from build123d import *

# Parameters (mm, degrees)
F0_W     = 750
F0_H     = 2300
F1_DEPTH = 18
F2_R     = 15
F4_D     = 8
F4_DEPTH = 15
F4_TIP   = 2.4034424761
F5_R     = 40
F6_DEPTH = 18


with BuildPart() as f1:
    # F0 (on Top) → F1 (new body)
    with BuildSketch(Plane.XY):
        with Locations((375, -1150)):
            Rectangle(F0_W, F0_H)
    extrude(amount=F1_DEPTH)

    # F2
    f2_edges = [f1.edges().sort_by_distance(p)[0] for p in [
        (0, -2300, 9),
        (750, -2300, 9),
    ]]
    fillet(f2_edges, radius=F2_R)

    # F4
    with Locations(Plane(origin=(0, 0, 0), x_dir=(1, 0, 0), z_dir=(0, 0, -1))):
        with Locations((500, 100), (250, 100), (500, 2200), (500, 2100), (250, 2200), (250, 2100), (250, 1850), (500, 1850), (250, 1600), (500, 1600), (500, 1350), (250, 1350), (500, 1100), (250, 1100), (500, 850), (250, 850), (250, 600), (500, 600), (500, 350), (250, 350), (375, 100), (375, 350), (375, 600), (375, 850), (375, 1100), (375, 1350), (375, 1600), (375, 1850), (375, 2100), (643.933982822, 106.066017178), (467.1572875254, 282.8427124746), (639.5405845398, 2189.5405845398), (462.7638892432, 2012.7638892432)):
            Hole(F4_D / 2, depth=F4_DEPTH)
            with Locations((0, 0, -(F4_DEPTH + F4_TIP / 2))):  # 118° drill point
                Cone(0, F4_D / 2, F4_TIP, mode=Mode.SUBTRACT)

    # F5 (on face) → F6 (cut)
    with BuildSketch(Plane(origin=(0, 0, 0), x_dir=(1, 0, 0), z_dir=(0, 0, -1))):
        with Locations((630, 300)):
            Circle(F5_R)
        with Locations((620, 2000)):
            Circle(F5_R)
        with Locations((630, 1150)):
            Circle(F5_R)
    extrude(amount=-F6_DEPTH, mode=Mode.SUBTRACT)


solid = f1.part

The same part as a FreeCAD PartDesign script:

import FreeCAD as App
import Part
import Sketcher
from FreeCAD import Vector
Q = App.Units.Quantity


def edges_at(feature, points):
    """Names of the edges that pass closest to the given points."""
    edges = feature.Shape.Edges
    near = lambda p: min(range(len(edges)), key=lambda i: edges[i].distToShape(Part.Vertex(*p))[0])
    return sorted({f"Edge{near(p) + 1}" for p in points})


def add_polygon(sketch, points):
    """Adds a closed chain of lines whose ends are joined by coincident constraints."""
    first, n = sketch.GeometryCount, len(points)
    for a, b in zip(points, points[1:] + points[:1]):
        sketch.addGeometry(Part.LineSegment(App.Vector(*a, 0), App.Vector(*b, 0)), False)
    for i in range(n):
        sketch.addConstraint(Sketcher.Constraint("Coincident", first + i, 2, first + (i + 1) % n, 1))

doc = App.newDocument("Part")
body = doc.addObject("PartDesign::Body", "Body")

# Sketch on XY plane
sketch1 = body.newObject("Sketcher::SketchObject", "Sketch")
sketch1.AttachmentSupport = (doc.getObject("XY_Plane"), [""])
sketch1.MapMode = "FlatFace"
add_polygon(sketch1, [(0, 0), (0, -2300), (750, -2300), (750, 0)])  # lines 0-3
sketch1.addConstraint([
    Sketcher.Constraint("Vertical", 0),
    Sketcher.Constraint("Horizontal", 1),
    Sketcher.Constraint("Vertical", 2),
    Sketcher.Constraint("Horizontal", 3),
    Sketcher.Constraint("Coincident", 3, 2, -1, 1),
    Sketcher.Constraint("DistanceX", 1, 1, 1, 2, Q("750 mm")),
    Sketcher.Constraint("DistanceY", 0, 2, 0, 1, Q("2300 mm")),
])
pad1 = body.newObject("PartDesign::Pad", "Pad")
pad1.Profile = sketch1
pad1.Length = 18
doc.recompute()

fillet = body.newObject("PartDesign::Fillet", "Fillet")
fillet.Base = (pad1, edges_at(pad1, [(0, -2300, 9), (750, -2300, 9)]))
fillet.Radius = 15

# Sketch on XY plane
sketch2 = body.newObject("Sketcher::SketchObject", "Sketch001")
sketch2.AttachmentSupport = (doc.getObject("XY_Plane"), [""])
sketch2.MapMode = "FlatFace"
sketch2.addGeometry([
    Part.Circle(Vector(500, -100, 0), Vector(0, 0, 1), 4),  # 0
    Part.Circle(Vector(250, -100, 0), Vector(0, 0, 1), 4),  # 1
    Part.Circle(Vector(500, -2200, 0), Vector(0, 0, 1), 4),  # 2
    Part.Circle(Vector(500, -2100, 0), Vector(0, 0, 1), 4),  # 3
    Part.Circle(Vector(250, -2200, 0), Vector(0, 0, 1), 4),  # 4
    Part.Circle(Vector(250, -2100, 0), Vector(0, 0, 1), 4),  # 5
    Part.Circle(Vector(250, -1850, 0), Vector(0, 0, 1), 4),  # 6
    Part.Circle(Vector(500, -1850, 0), Vector(0, 0, 1), 4),  # 7
    Part.Circle(Vector(250, -1600, 0), Vector(0, 0, 1), 4),  # 8
    Part.Circle(Vector(500, -1600, 0), Vector(0, 0, 1), 4),  # 9
    Part.Circle(Vector(500, -1350, 0), Vector(0, 0, 1), 4),  # 10
    Part.Circle(Vector(250, -1350, 0), Vector(0, 0, 1), 4),  # 11
    Part.Circle(Vector(500, -1100, 0), Vector(0, 0, 1), 4),  # 12
    Part.Circle(Vector(250, -1100, 0), Vector(0, 0, 1), 4),  # 13
    Part.Circle(Vector(500, -850, 0), Vector(0, 0, 1), 4),  # 14
    Part.Circle(Vector(250, -850, 0), Vector(0, 0, 1), 4),  # 15
    Part.Circle(Vector(250, -600, 0), Vector(0, 0, 1), 4),  # 16
    Part.Circle(Vector(500, -600, 0), Vector(0, 0, 1), 4),  # 17
    Part.Circle(Vector(500, -350, 0), Vector(0, 0, 1), 4),  # 18
    Part.Circle(Vector(250, -350, 0), Vector(0, 0, 1), 4),  # 19
    Part.Circle(Vector(375, -100, 0), Vector(0, 0, 1), 4),  # 20
    Part.Circle(Vector(375, -350, 0), Vector(0, 0, 1), 4),  # 21
    Part.Circle(Vector(375, -600, 0), Vector(0, 0, 1), 4),  # 22
    Part.Circle(Vector(375, -850, 0), Vector(0, 0, 1), 4),  # 23
    Part.Circle(Vector(375, -1100, 0), Vector(0, 0, 1), 4),  # 24
    Part.Circle(Vector(375, -1350, 0), Vector(0, 0, 1), 4),  # 25
    Part.Circle(Vector(375, -1600, 0), Vector(0, 0, 1), 4),  # 26
    Part.Circle(Vector(375, -1850, 0), Vector(0, 0, 1), 4),  # 27
    Part.Circle(Vector(375, -2100, 0), Vector(0, 0, 1), 4),  # 28
    Part.Circle(Vector(643.9, -106.1, 0), Vector(0, 0, 1), 4),  # 29
    Part.Circle(Vector(467.2, -282.8, 0), Vector(0, 0, 1), 4),  # 30
    Part.Circle(Vector(639.5, -2189.5, 0), Vector(0, 0, 1), 4),  # 31
    Part.Circle(Vector(462.8, -2012.8, 0), Vector(0, 0, 1), 4),  # 32
], False)
sketch2.addConstraint([
    Sketcher.Constraint("Equal", 0, 1),
    Sketcher.Constraint("Equal", 1, 2),
    Sketcher.Constraint("Equal", 2, 3),
    Sketcher.Constraint("Equal", 3, 4),
    Sketcher.Constraint("Equal", 4, 5),
    Sketcher.Constraint("Equal", 5, 6),
    Sketcher.Constraint("Equal", 6, 7),
    Sketcher.Constraint("Equal", 7, 8),
    Sketcher.Constraint("Equal", 8, 9),
    Sketcher.Constraint("Equal", 9, 10),
    Sketcher.Constraint("Equal", 10, 11),
    Sketcher.Constraint("Equal", 11, 12),
    Sketcher.Constraint("Equal", 12, 13),
    Sketcher.Constraint("Equal", 13, 14),
    Sketcher.Constraint("Equal", 14, 15),
    Sketcher.Constraint("Equal", 15, 16),
    Sketcher.Constraint("Equal", 16, 17),
    Sketcher.Constraint("Equal", 17, 18),
    Sketcher.Constraint("Equal", 18, 19),
    Sketcher.Constraint("Equal", 19, 20),
    Sketcher.Constraint("Equal", 20, 21),
    Sketcher.Constraint("Equal", 21, 22),
    Sketcher.Constraint("Equal", 22, 23),
    Sketcher.Constraint("Equal", 23, 24),
    Sketcher.Constraint("Equal", 24, 25),
    Sketcher.Constraint("Equal", 25, 26),
    Sketcher.Constraint("Equal", 26, 27),
    Sketcher.Constraint("Equal", 27, 28),
    Sketcher.Constraint("Equal", 28, 29),
    Sketcher.Constraint("Equal", 29, 30),
    Sketcher.Constraint("Equal", 30, 31),
    Sketcher.Constraint("Equal", 31, 32),
    Sketcher.Constraint("Horizontal", 0, 3, 1, 3),
    Sketcher.Constraint("Horizontal", 2, 3, 4, 3),
    Sketcher.Constraint("Horizontal", 3, 3, 5, 3),
    Sketcher.Constraint("Horizontal", 6, 3, 7, 3),
    Sketcher.Constraint("Horizontal", 8, 3, 9, 3),
    Sketcher.Constraint("Horizontal", 10, 3, 11, 3),
    Sketcher.Constraint("Horizontal", 12, 3, 13, 3),
    Sketcher.Constraint("Horizontal", 14, 3, 15, 3),
    Sketcher.Constraint("Horizontal", 16, 3, 17, 3),
    Sketcher.Constraint("Horizontal", 18, 3, 19, 3),
    Sketcher.Constraint("Horizontal", 1, 3, 20, 3),
    Sketcher.Constraint("Horizontal", 19, 3, 21, 3),
    Sketcher.Constraint("Horizontal", 17, 3, 22, 3),
    Sketcher.Constraint("Horizontal", 15, 3, 23, 3),
    Sketcher.Constraint("Horizontal", 13, 3, 24, 3),
    Sketcher.Constraint("Horizontal", 11, 3, 25, 3),
    Sketcher.Constraint("Horizontal", 9, 3, 26, 3),
    Sketcher.Constraint("Horizontal", 7, 3, 27, 3),
    Sketcher.Constraint("Horizontal", 5, 3, 28, 3),
    Sketcher.Constraint("Vertical", 0, 3, 2, 3),
    Sketcher.Constraint("Vertical", 2, 3, 3, 3),
    Sketcher.Constraint("Vertical", 1, 3, 4, 3),
    Sketcher.Constraint("Vertical", 4, 3, 5, 3),
    Sketcher.Constraint("Vertical", 5, 3, 6, 3),
    Sketcher.Constraint("Vertical", 3, 3, 7, 3),
    Sketcher.Constraint("Vertical", 6, 3, 8, 3),
    Sketcher.Constraint("Vertical", 7, 3, 9, 3),
    Sketcher.Constraint("Vertical", 9, 3, 10, 3),
    Sketcher.Constraint("Vertical", 8, 3, 11, 3),
    Sketcher.Constraint("Vertical", 10, 3, 12, 3),
    Sketcher.Constraint("Vertical", 11, 3, 13, 3),
    Sketcher.Constraint("Vertical", 12, 3, 14, 3),
    Sketcher.Constraint("Vertical", 13, 3, 15, 3),
    Sketcher.Constraint("Vertical", 15, 3, 16, 3),
    Sketcher.Constraint("Vertical", 14, 3, 17, 3),
    Sketcher.Constraint("Vertical", 17, 3, 18, 3),
    Sketcher.Constraint("Vertical", 16, 3, 19, 3),
    Sketcher.Constraint("Vertical", 20, 3, 21, 3),
    Sketcher.Constraint("Vertical", 21, 3, 22, 3),
    Sketcher.Constraint("Vertical", 22, 3, 23, 3),
    Sketcher.Constraint("Vertical", 23, 3, 24, 3),
    Sketcher.Constraint("Vertical", 24, 3, 25, 3),
    Sketcher.Constraint("Vertical", 25, 3, 26, 3),
    Sketcher.Constraint("Vertical", 26, 3, 27, 3),
    Sketcher.Constraint("Vertical", 27, 3, 28, 3),
    Sketcher.Constraint("Diameter", 0, Q("8 mm")),
    Sketcher.Constraint("DistanceX", -1, 1, 0, 3, Q("500 mm")),
    Sketcher.Constraint("DistanceY", 0, 3, -1, 1, Q("100 mm")),
    Sketcher.Constraint("DistanceX", -1, 1, 1, 3, Q("250 mm")),
    Sketcher.Constraint("DistanceY", 2, 3, -1, 1, Q("2200 mm")),
    Sketcher.Constraint("DistanceY", 3, 3, -1, 1, Q("2100 mm")),
    Sketcher.Constraint("DistanceY", 6, 3, -1, 1, Q("1850 mm")),
    Sketcher.Constraint("DistanceY", 8, 3, -1, 1, Q("1600 mm")),
    Sketcher.Constraint("DistanceY", 10, 3, -1, 1, Q("1350 mm")),
    Sketcher.Constraint("DistanceY", 12, 3, -1, 1, Q("1100 mm")),
    Sketcher.Constraint("DistanceY", 14, 3, -1, 1, Q("850 mm")),
    Sketcher.Constraint("DistanceY", 16, 3, -1, 1, Q("600 mm")),
    Sketcher.Constraint("DistanceY", 18, 3, -1, 1, Q("350 mm")),
    Sketcher.Constraint("DistanceX", -1, 1, 20, 3, Q("375 mm")),
    Sketcher.Constraint("DistanceX", -1, 1, 32, 3, Q("462.763889 mm")),
    Sketcher.Constraint("DistanceY", 32, 3, -1, 1, Q("2012.763889 mm")),
    Sketcher.Constraint("DistanceX", -1, 1, 29, 3, Q("643.933983 mm")),
    Sketcher.Constraint("DistanceY", 29, 3, -1, 1, Q("106.066017 mm")),
    Sketcher.Constraint("DistanceX", -1, 1, 30, 3, Q("467.157288 mm")),
    Sketcher.Constraint("DistanceY", 30, 3, -1, 1, Q("282.842712 mm")),
    Sketcher.Constraint("DistanceX", -1, 1, 31, 3, Q("639.540585 mm")),
    Sketcher.Constraint("DistanceY", 31, 3, -1, 1, Q("2189.540585 mm")),
])
doc.recompute()
hole = body.newObject("PartDesign::Hole", "Hole")
hole.Profile = sketch2
hole.ThreadType = "None"
hole.Diameter = 8
hole.DepthType = "Dimension"
hole.Depth = 15
hole.DrillPoint = "Angled"
hole.DrillPointAngle = 118
hole.Reversed = True

# Sketch on XY plane
sketch3 = body.newObject("Sketcher::SketchObject", "Sketch002")
sketch3.AttachmentSupport = (doc.getObject("XY_Plane"), [""])
sketch3.MapMode = "FlatFace"
sketch3.addGeometry([
    Part.Circle(Vector(630, -300, 0), Vector(0, 0, 1), 40),
    Part.Circle(Vector(620, -2000, 0), Vector(0, 0, 1), 40),
    Part.Circle(Vector(630, -1150, 0), Vector(0, 0, 1), 40),
], False)
sketch3.addConstraint([
    Sketcher.Constraint("Equal", 0, 1),
    Sketcher.Constraint("Equal", 1, 2),
    Sketcher.Constraint("Vertical", 0, 3, 2, 3),
    Sketcher.Constraint("Diameter", 0, Q("80 mm")),
    Sketcher.Constraint("DistanceX", -1, 1, 0, 3, Q("630 mm")),
    Sketcher.Constraint("DistanceY", 0, 3, -1, 1, Q("300 mm")),
    Sketcher.Constraint("DistanceX", -1, 1, 1, 3, Q("620 mm")),
    Sketcher.Constraint("DistanceY", 1, 3, -1, 1, Q("2000 mm")),
    Sketcher.Constraint("DistanceY", 2, 3, -1, 1, Q("1150 mm")),
])
pocket1 = body.newObject("PartDesign::Pocket", "Pocket")
pocket1.Profile = sketch3
pocket1.Length = 18
pocket1.Reversed = True

doc.recompute()
